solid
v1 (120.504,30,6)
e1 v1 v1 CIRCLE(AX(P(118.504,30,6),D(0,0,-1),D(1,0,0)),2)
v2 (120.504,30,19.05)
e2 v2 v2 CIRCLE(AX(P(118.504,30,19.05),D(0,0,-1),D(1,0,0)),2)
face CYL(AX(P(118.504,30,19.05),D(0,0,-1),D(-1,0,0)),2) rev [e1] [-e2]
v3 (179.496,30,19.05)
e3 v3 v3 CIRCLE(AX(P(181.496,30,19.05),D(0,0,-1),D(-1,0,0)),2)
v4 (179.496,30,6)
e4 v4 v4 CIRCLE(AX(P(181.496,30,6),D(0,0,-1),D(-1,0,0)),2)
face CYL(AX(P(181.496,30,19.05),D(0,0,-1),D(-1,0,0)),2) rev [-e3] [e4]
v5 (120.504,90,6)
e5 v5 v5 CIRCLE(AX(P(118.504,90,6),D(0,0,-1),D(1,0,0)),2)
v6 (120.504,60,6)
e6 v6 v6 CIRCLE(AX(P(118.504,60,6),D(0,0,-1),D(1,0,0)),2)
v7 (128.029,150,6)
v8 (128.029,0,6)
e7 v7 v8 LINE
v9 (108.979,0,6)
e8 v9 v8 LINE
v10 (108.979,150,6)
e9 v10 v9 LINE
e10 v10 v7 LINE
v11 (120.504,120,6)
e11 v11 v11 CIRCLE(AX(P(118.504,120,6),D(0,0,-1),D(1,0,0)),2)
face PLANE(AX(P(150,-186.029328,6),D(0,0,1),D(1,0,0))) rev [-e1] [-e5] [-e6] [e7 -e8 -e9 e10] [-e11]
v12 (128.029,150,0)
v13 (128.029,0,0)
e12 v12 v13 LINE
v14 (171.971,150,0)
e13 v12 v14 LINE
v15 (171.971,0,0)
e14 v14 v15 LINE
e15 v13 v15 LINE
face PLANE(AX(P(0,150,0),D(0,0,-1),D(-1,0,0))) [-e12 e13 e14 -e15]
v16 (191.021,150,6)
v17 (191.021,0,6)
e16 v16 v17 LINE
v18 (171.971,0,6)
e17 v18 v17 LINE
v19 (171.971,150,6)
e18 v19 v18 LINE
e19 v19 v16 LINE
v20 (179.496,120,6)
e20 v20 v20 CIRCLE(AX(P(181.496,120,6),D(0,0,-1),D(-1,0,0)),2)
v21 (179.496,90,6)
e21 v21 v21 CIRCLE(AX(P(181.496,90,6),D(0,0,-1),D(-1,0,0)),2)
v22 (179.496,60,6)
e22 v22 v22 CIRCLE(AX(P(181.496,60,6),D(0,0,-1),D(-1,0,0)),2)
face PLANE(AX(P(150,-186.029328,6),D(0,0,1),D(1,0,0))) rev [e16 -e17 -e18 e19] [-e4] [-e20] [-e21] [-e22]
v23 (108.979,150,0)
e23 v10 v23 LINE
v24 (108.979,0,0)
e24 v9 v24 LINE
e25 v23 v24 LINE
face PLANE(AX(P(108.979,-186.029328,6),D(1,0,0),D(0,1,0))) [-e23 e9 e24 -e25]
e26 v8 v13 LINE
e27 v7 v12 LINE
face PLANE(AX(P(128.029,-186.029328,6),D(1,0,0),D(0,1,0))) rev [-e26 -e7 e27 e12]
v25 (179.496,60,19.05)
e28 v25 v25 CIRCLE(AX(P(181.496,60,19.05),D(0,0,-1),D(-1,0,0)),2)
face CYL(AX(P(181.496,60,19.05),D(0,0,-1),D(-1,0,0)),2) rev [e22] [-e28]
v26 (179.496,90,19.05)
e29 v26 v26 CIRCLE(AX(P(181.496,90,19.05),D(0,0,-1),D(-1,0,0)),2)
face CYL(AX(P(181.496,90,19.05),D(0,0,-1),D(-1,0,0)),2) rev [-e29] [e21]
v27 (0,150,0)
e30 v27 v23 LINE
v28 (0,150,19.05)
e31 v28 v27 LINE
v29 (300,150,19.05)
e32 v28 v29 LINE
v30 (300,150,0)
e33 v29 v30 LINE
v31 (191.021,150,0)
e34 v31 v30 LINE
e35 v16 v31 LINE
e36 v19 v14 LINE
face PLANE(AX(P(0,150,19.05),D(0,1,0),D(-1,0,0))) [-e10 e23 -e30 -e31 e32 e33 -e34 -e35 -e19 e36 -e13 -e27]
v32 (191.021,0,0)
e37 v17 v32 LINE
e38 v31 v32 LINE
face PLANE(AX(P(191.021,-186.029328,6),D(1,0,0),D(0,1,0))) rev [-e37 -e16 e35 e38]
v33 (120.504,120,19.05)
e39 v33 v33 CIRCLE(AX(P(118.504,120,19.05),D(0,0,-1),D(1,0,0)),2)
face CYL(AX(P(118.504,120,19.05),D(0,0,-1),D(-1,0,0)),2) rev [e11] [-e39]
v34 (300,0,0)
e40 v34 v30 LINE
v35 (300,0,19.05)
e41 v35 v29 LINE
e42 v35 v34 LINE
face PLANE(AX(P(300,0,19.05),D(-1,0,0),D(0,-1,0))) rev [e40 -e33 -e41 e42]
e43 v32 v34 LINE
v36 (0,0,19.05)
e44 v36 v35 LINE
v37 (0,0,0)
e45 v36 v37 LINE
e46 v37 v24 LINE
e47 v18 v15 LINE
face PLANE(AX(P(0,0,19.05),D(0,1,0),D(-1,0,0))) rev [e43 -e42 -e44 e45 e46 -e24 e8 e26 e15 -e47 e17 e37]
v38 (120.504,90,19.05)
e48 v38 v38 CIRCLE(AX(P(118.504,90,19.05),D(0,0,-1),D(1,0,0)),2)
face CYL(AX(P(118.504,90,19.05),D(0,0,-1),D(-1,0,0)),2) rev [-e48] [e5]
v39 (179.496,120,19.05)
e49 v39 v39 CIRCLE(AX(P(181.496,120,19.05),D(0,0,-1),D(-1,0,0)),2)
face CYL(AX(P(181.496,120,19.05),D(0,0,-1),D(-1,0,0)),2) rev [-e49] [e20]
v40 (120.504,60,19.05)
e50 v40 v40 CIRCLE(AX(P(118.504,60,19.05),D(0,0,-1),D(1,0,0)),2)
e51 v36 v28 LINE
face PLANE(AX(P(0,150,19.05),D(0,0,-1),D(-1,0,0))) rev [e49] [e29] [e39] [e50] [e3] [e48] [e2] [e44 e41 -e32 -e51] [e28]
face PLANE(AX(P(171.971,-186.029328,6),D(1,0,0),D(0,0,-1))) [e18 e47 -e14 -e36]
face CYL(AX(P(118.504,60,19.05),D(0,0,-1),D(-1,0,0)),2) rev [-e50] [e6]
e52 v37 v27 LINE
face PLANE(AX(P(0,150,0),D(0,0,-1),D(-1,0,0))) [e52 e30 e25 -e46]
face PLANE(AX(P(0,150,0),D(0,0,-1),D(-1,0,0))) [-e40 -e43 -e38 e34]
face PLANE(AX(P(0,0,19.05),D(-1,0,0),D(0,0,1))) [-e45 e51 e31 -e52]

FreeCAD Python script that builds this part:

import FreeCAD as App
import Part
import Sketcher
from FreeCAD import Vector
Q = App.Units.Quantity


def add_polygon(sketch, points):
    """Adds a closed chain of lines whose ends are joined by coincident constraints."""
    first, n = sketch.GeometryCount, len(points)
    for a, b in zip(points, points[1:] + points[:1]):
        sketch.addGeometry(Part.LineSegment(App.Vector(*a, 0), App.Vector(*b, 0)), False)
    for i in range(n):
        sketch.addConstraint(Sketcher.Constraint("Coincident", first + i, 2, first + (i + 1) % n, 1))

doc = App.newDocument("Part")
params = doc.addObject("Spreadsheet::Sheet", "Params")
for row, (alias, value) in enumerate([
    ("sketch1_width", "300 mm"),
    ("sketch1_height", "150 mm"),
    ("pad1_length", "19.05 mm"),
    ("sketch2_height", "150 mm"),
    ("sketch2_width", "19.05 mm"),
    ("pocket1_length", "6 mm"),
    ("sketch3_diameter", "4 mm"),
], start=1):
    params.set(f"A{row}", alias)
    params.set(f"B{row}", "=" + value)
    params.setAlias(f"B{row}", alias)

body = doc.addObject("PartDesign::Body", "Body")

sketch1 = doc.addObject("Sketcher::SketchObject", "Sketch")
body.addObject(sketch1)
sketch1.AttachmentSupport = (doc.XY_Plane, [""])
sketch1.MapMode = "FlatFace"
add_polygon(sketch1, [(0, 150), (0, 0), (300, 0), (300, 150)])
sketch1.addConstraint([
    Sketcher.Constraint("Vertical", 0),
    Sketcher.Constraint("Horizontal", 1),
    Sketcher.Constraint("Vertical", 2),
    Sketcher.Constraint("Horizontal", 3),
    Sketcher.Constraint("Coincident", 0, 2, -1, 1),
    Sketcher.Constraint("DistanceX", 1, 1, 1, 2, Q("300 mm")),
    Sketcher.Constraint("DistanceY", 0, 2, 0, 1, Q("150 mm")),
])
sketch1.setExpression("Constraints[9]", "Params.sketch1_width")
sketch1.setExpression("Constraints[10]", "Params.sketch1_height")
pad1 = doc.addObject("PartDesign::Pad", "Pad")
body.addObject(pad1)
pad1.Profile = sketch1
pad1.setExpression("Length", "Params.pad1_length")

sketch2 = doc.addObject("Sketcher::SketchObject", "Sketch001")
body.addObject(sketch2)
sketch2.AttachmentSupport = (doc.XY_Plane, [""])
sketch2.MapMode = "FlatFace"
add_polygon(sketch2, [(172, 150), (172, 0), (191, 0), (191, 150)])
add_polygon(sketch2, [(109, 150), (109, 0), (128, 0), (128, 150)])
sketch2.addConstraint([
    Sketcher.Constraint("Vertical", 0),
    Sketcher.Constraint("Horizontal", 1),
    Sketcher.Constraint("Vertical", 2),
    Sketcher.Constraint("Horizontal", 3),
    Sketcher.Constraint("Vertical", 4),
    Sketcher.Constraint("Horizontal", 5),
    Sketcher.Constraint("Vertical", 6),
    Sketcher.Constraint("Horizontal", 7),
    Sketcher.Constraint("PointOnObject", 0, 2, -1),
    Sketcher.Constraint("PointOnObject", 4, 2, -1),
    Sketcher.Constraint("Horizontal", 3, 2, 6, 2),
    Sketcher.Constraint("Equal", 3, 5),
    Sketcher.Constraint("DistanceY", 0, 2, 0, 1, Q("150 mm")),
    Sketcher.Constraint("DistanceX", 1, 1, 1, 2, Q("19.05 mm")),
    Sketcher.Constraint("DistanceX", -1, 1, 0, 2, Q("171.971 mm")),
    Sketcher.Constraint("DistanceX", -1, 1, 4, 2, Q("108.979 mm")),
])
sketch2.setExpression("Constraints[20]", "Params.sketch2_height")
sketch2.setExpression("Constraints[21]", "Params.sketch2_width")
pocket1 = doc.addObject("PartDesign::Pocket", "Pocket")
body.addObject(pocket1)
pocket1.Profile = sketch2
pocket1.setExpression("Length", "Params.pocket1_length")
pocket1.Reversed = True

sketch3 = doc.addObject("Sketcher::SketchObject", "Sketch002")
body.addObject(sketch3)
sketch3.AttachmentSupport = (doc.XY_Plane, [""])
sketch3.MapMode = "FlatFace"
sketch3.AttachmentOffset = App.Placement(Vector(0, 0, 6), App.Rotation())
sketch3.addGeometry([
    Part.Circle(Vector(118.5, 30, 0), Vector(0, 0, 1), 2),
    Part.Circle(Vector(181.5, 30, 0), Vector(0, 0, 1), 2),
    Part.Circle(Vector(181.5, 60, 0), Vector(0, 0, 1), 2),
    Part.Circle(Vector(181.5, 90, 0), Vector(0, 0, 1), 2),
    Part.Circle(Vector(181.5, 120, 0), Vector(0, 0, 1), 2),
    Part.Circle(Vector(118.5, 60, 0), Vector(0, 0, 1), 2),
    Part.Circle(Vector(118.5, 90, 0), Vector(0, 0, 1), 2),
    Part.Circle(Vector(118.5, 120, 0), Vector(0, 0, 1), 2),
], False)
sketch3.addConstraint([
    Sketcher.Constraint("Equal", 0, 1),
    Sketcher.Constraint("Equal", 1, 2),
    Sketcher.Constraint("Equal", 2, 3),
    Sketcher.Constraint("Equal", 3, 4),
    Sketcher.Constraint("Equal", 4, 5),
    Sketcher.Constraint("Equal", 5, 6),
    Sketcher.Constraint("Equal", 6, 7),
    Sketcher.Constraint("Horizontal", 0, 3, 1, 3),
    Sketcher.Constraint("Horizontal", 2, 3, 5, 3),
    Sketcher.Constraint("Horizontal", 3, 3, 6, 3),
    Sketcher.Constraint("Horizontal", 4, 3, 7, 3),
    Sketcher.Constraint("Vertical", 1, 3, 2, 3),
    Sketcher.Constraint("Vertical", 2, 3, 3, 3),
    Sketcher.Constraint("Vertical", 3, 3, 4, 3),
    Sketcher.Constraint("Vertical", 0, 3, 5, 3),
    Sketcher.Constraint("Vertical", 5, 3, 6, 3),
    Sketcher.Constraint("Vertical", 6, 3, 7, 3),
    Sketcher.Constraint("Diameter", 0, Q("4 mm")),
    Sketcher.Constraint("DistanceY", -1, 1, 0, 3, Q("30 mm")),
    Sketcher.Constraint("DistanceY", -1, 1, 2, 3, Q("60 mm")),
    Sketcher.Constraint("DistanceY", -1, 1, 3, 3, Q("90 mm")),
    Sketcher.Constraint("DistanceY", -1, 1, 4, 3, Q("120 mm")),
    Sketcher.Constraint("DistanceX", -1, 1, 0, 3, Q("118.504 mm")),
    Sketcher.Constraint("DistanceX", -1, 1, 1, 3, Q("181.496 mm")),
])
sketch3.setExpression("Constraints[17]", "Params.sketch3_diameter")
pocket2 = doc.addObject("PartDesign::Pocket", "Pocket001")
body.addObject(pocket2)
pocket2.Profile = sketch3
pocket2.Type = "ThroughAll"
pocket2.Reversed = True

doc.recompute()
